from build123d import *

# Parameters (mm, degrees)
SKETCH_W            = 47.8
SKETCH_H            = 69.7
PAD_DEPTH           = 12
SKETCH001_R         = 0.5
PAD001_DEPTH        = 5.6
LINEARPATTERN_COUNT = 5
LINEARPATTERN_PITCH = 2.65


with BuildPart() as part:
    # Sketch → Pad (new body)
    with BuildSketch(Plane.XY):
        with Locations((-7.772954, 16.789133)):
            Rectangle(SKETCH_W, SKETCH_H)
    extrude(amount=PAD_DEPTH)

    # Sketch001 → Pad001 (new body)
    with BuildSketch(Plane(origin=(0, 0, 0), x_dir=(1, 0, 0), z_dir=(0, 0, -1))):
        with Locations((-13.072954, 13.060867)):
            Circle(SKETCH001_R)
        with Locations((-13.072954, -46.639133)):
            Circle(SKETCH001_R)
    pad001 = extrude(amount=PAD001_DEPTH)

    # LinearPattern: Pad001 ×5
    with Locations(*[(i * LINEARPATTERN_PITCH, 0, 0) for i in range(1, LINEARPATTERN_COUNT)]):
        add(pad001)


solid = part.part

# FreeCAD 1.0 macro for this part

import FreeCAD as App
import Part
import Sketcher

doc = App.newDocument("Part")
params = doc.addObject("Spreadsheet::Sheet", "Params")
for row, (alias, value) in enumerate([
    ("sketch1_width", "47.8 mm"),
    ("sketch1_height", "69.7 mm"),
    ("pad1_length", "12 mm"),
    ("sketch2_diameter", "1 mm"),
    ("pad2_length", "5.6 mm"),
    ("linearpattern_pitch", "2.65 mm"),
], start=1):
    params.set(f"A{row}", alias)
    params.set(f"B{row}", "=" + value)
    params.setAlias(f"B{row}", alias)

body = doc.addObject("PartDesign::Body", "Body")

sketch1 = body.newObject("Sketcher::SketchObject", "Sketch")
sketch1.AttachmentSupport = (doc.getObject("XY_Plane"), [""])
sketch1.MapMode = "FlatFace"
sketch1.addGeometry([
    Part.LineSegment(App.Vector(-32, 52, 0), App.Vector(-32, -18, 0)),
    Part.LineSegment(App.Vector(-32, -18, 0), App.Vector(16, -18, 0)),
    Part.LineSegment(App.Vector(16, -18, 0), App.Vector(16, 52, 0)),
    Part.LineSegment(App.Vector(16, 52, 0), App.Vector(-32, 52, 0)),
], False)
sketch1.addConstraint([
    Sketcher.Constraint("Coincident", 0, 2, 1, 1),
    Sketcher.Constraint("Coincident", 1, 2, 2, 1),
    Sketcher.Constraint("Coincident", 2, 2, 3, 1),
    Sketcher.Constraint("Coincident", 3, 2, 0, 1),
    Sketcher.Constraint("Vertical", 0),
    Sketcher.Constraint("Horizontal", 1),
    Sketcher.Constraint("Vertical", 2),
    Sketcher.Constraint("Horizontal", 3),
    Sketcher.Constraint("DistanceX", 1, 1, 1, 2, 47.8),
    Sketcher.Constraint("DistanceY", 0, 2, 0, 1, 69.7),
    Sketcher.Constraint("DistanceX", 0, 2, -1, 1, 31.672954),
    Sketcher.Constraint("DistanceY", 0, 2, -1, 1, 18.060867),
])
sketch1.setExpression("Constraints[8]", "Params.sketch1_width")
sketch1.setExpression("Constraints[9]", "Params.sketch1_height")
pad1 = body.newObject("PartDesign::Pad", "Pad")
pad1.Profile = sketch1
pad1.setExpression("Length", "Params.pad1_length")

sketch2 = body.newObject("Sketcher::SketchObject", "Sketch001")
sketch2.AttachmentSupport = (doc.getObject("XY_Plane"), [""])
sketch2.MapMode = "FlatFace"
sketch2.addGeometry([
    Part.Circle(App.Vector(-13.1, -13.1, 0), App.Vector(0, 0, 1), 0.5),
    Part.Circle(App.Vector(-13.1, 46.6, 0), App.Vector(0, 0, 1), 0.5),
], False)
sketch2.addConstraint([
    Sketcher.Constraint("Equal", 0, 1),
    Sketcher.Constraint("Vertical", 0, 3, 1, 3),
    Sketcher.Constraint("Diameter", 0, 1.0),
    Sketcher.Constraint("DistanceY", 0, 3, 1, 3, 59.7),
    Sketcher.Constraint("DistanceX", 0, 3, -1, 1, 13.072954),
    Sketcher.Constraint("DistanceY", 0, 3, -1, 1, 13.060867),
])
sketch2.setExpression("Constraints[2]", "Params.sketch2_diameter")
pad2 = body.newObject("PartDesign::Pad", "Pad001")
pad2.Profile = sketch2
pad2.setExpression("Length", "Params.pad2_length")
pad2.Reversed = True
doc.recompute()

linearpattern = body.newObject("PartDesign::LinearPattern", "LinearPattern")
linearpattern.Originals = [pad2]
linearpattern.Direction = (doc.getObject("X_Axis"), [""])
linearpattern.Mode = "offset"
linearpattern.setExpression("Offset", "Params.linearpattern_pitch")
linearpattern.Occurrences = 5
body.Tip = linearpattern

doc.recompute()
